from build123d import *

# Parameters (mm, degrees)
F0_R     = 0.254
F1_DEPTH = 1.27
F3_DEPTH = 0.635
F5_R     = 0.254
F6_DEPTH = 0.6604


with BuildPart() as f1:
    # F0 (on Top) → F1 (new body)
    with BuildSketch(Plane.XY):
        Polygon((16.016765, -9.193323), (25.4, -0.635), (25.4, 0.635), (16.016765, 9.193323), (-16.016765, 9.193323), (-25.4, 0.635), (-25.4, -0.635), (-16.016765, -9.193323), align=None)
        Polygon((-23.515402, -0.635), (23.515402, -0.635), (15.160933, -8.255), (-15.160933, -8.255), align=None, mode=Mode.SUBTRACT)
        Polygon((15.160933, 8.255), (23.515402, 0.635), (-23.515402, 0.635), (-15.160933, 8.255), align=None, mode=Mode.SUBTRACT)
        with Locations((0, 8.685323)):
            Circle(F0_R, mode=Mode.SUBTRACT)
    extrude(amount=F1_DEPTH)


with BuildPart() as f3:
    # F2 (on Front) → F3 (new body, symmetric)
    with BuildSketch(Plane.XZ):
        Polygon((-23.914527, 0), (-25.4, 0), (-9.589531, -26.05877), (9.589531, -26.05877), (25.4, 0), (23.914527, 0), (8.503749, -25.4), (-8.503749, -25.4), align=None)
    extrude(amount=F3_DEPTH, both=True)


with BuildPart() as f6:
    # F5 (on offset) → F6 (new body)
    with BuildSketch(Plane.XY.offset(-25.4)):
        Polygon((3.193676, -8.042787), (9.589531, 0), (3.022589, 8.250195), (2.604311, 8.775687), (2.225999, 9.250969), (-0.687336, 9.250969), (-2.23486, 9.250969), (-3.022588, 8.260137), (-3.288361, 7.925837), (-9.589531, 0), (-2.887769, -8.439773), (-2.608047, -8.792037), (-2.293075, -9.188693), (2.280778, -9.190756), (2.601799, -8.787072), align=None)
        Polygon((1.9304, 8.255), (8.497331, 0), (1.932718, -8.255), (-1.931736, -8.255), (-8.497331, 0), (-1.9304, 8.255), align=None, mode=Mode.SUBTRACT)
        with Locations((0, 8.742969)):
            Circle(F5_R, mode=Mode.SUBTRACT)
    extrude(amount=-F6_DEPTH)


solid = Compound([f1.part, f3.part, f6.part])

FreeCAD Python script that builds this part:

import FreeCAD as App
import Part
import Sketcher
from FreeCAD import Vector
Q = App.Units.Quantity


def add_polygon(sketch, points):
    """Adds a closed chain of lines whose ends are joined by coincident constraints."""
    first, n = sketch.GeometryCount, len(points)
    for a, b in zip(points, points[1:] + points[:1]):
        sketch.addGeometry(Part.LineSegment(App.Vector(*a, 0), App.Vector(*b, 0)), False)
    for i in range(n):
        sketch.addConstraint(Sketcher.Constraint("Coincident", first + i, 2, first + (i + 1) % n, 1))

doc = App.newDocument("Part")
body = doc.addObject("PartDesign::Body", "Body")

# Sketch on XY plane
sketch1 = body.newObject("Sketcher::SketchObject", "Sketch")
sketch1.AttachmentSupport = (doc.getObject("XY_Plane"), [""])
sketch1.MapMode = "FlatFace"
add_polygon(sketch1, [(16.02, -9.19), (25.4, -0.64), (25.4, 0.64), (16.02, 9.19), (-16.02, 9.19), (-25.4, 0.64), (-25.4, -0.64), (-16.02, -9.19)])  # lines 0-7
add_polygon(sketch1, [(-15.16, -8.26), (-23.52, -0.64), (23.52, -0.64), (15.16, -8.26)])  # lines 8-11
add_polygon(sketch1, [(-15.16, 8.26), (15.16, 8.26), (23.52, 0.64), (-23.52, 0.64)])  # lines 12-15
sketch1.addGeometry(Part.Circle(Vector(0, 8.69, 0), Vector(0, 0, 1), 0.25), False)  # 16
sketch1.addConstraint([
    Sketcher.Constraint("Vertical", 1),
    Sketcher.Constraint("Horizontal", 3),
    Sketcher.Constraint("Vertical", 5),
    Sketcher.Constraint("Horizontal", 7),
    Sketcher.Constraint("Horizontal", 9),
    Sketcher.Constraint("Horizontal", 11),
    Sketcher.Constraint("Horizontal", 12),
    Sketcher.Constraint("Horizontal", 14),
    Sketcher.Constraint("Symmetric", 0, 2, 4, 2, -1, 1),
    Sketcher.Constraint("Symmetric", 2, 2, 6, 2, -1, 1),
    Sketcher.Constraint("Symmetric", 11, 2, 12, 2, -1, 1),
    Sketcher.Constraint("Symmetric", 8, 2, 13, 2, -1, 1),
    Sketcher.Constraint("PointOnObject", 16, 3, -2),
    Sketcher.Constraint("Parallel", 0, 4),
    Sketcher.Constraint("Parallel", 2, 6),
    Sketcher.Constraint("Parallel", 6, 8),
    Sketcher.Constraint("Parallel", 4, 10),
    Sketcher.Constraint("Parallel", 10, 15),
    Sketcher.Constraint("Horizontal", 1, 2, 4, 2),
    Sketcher.Constraint("Horizontal", 5, 2, 8, 2),
    Sketcher.Constraint("Vertical", 3, 2, 6, 2),
    Sketcher.Constraint("Vertical", 10, 2, 12, 2),
    Sketcher.Constraint("Vertical", 8, 2, 14, 2),
    Sketcher.Constraint("Diameter", 16, Q("0.02 in")),
    Sketcher.Constraint("DistanceX", -1, 1, 0, 2, Q("1 in")),
    Sketcher.Constraint("Distance", 0, Q("0.5 in")),
    Sketcher.Constraint("DistanceY", 1, 1, 1, 2, Q("0.05 in")),
    Sketcher.Constraint("DistanceY", 10, 2, 9, 2, Q("0.3 in")),
    Sketcher.Constraint("DistanceY", 16, 3, 2, 2, Q("0.02 in")),
    Sketcher.Constraint("DistanceX", 3, 2, 3, 1, Q("32.03353 mm")),
    Sketcher.Constraint("DistanceX", 9, 1, 9, 2, Q("47.030804 mm")),
])
pad1 = body.newObject("PartDesign::Pad", "Pad")
pad1.Profile = sketch1
pad1.Length = Q("0.05 in")
body2 = doc.addObject("PartDesign::Body", "Body001")

# Sketch on XZ plane
sketch2 = body2.newObject("Sketcher::SketchObject", "Sketch001")
sketch2.AttachmentSupport = (doc.getObject("XZ_Plane001"), [""])
sketch2.MapMode = "FlatFace"
add_polygon(sketch2, [(-23.9, 0), (-25.4, 0), (-9.6, -26.1), (9.6, -26.1), (25.4, 0), (23.9, 0), (8.5, -25.4), (-8.5, -25.4)])  # lines 0-7
sketch2.addConstraint([
    Sketcher.Constraint("Horizontal", 0),
    Sketcher.Constraint("Horizontal", 2),
    Sketcher.Constraint("Horizontal", 4),
    Sketcher.Constraint("Horizontal", 6),
    Sketcher.Constraint("Symmetric", 0, 2, 3, 2, -1, 1),
    Sketcher.Constraint("Symmetric", 4, 2, 7, 2, -2),
    Sketcher.Constraint("Parallel", 3, 5),
    Sketcher.Constraint("Parallel", 1, 7),
    Sketcher.Constraint("Equal", 1, 3),
    Sketcher.Constraint("DistanceX", 0, 2, -1, 1, Q("1 in")),
    Sketcher.Constraint("DistanceY", 5, 2, -1, 1, Q("1 in")),
    Sketcher.Constraint("Distance", 1, Q("1.2 in")),
    Sketcher.Constraint("DistanceX", 2, 1, 2, 2, Q("19.179062 mm")),
    Sketcher.Constraint("DistanceX", 0, 2, 0, 1, Q("1.485473 mm")),
])
pad2 = body2.newObject("PartDesign::Pad", "Pad001")
pad2.Profile = sketch2
pad2.Length = Q("0.05 in")
pad2.Midplane = True
body3 = doc.addObject("PartDesign::Body", "Body002")

# Sketch on XY plane
sketch3 = body3.newObject("Sketcher::SketchObject", "Sketch002")
sketch3.AttachmentSupport = (doc.getObject("XY_Plane002"), [""])
sketch3.MapMode = "FlatFace"
sketch3.AttachmentOffset = App.Placement(Vector(0, 0, -1 * 25.4), App.Rotation())
add_polygon(sketch3, [(3.19, -8.04), (9.59, 0), (3.02, 8.25), (2.6, 8.78), (2.23, 9.25), (-2.23, 9.25), (-3.02, 8.26), (-3.29, 7.93), (-9.59, 0), (-2.89, -8.44), (-2.61, -8.79), (-2.29, -9.19), (2.28, -9.19), (2.6, -8.79)])  # lines 0-13
add_polygon(sketch3, [(-1.93, 8.26), (1.93, 8.26), (8.5, 0), (1.93, -8.26), (-1.93, -8.26), (-8.5, 0)])  # lines 14-19
sketch3.addGeometry(Part.Circle(Vector(0, 8.74, 0), Vector(0, 0, 1), 0.25), False)  # 20
sketch3.addConstraint([
    Sketcher.Constraint("Horizontal", 4),
    Sketcher.Constraint("Horizontal", 14),
    Sketcher.Constraint("Horizontal", 17),
    Sketcher.Constraint("Symmetric", 0, 2, 7, 2, -1, 1),
    Sketcher.Constraint("Symmetric", 15, 2, 18, 2, -1, 1),
    Sketcher.Constraint("PointOnObject", 20, 3, -2),
    Sketcher.Constraint("PointOnObject", 0, 2, -1),
    Sketcher.Constraint("PointOnObject", 15, 2, -1),
    Sketcher.Constraint("Parallel", 1, 2),
    Sketcher.Constraint("Parallel", 2, 3),
    Sketcher.Constraint("Parallel", 5, 6),
    Sketcher.Constraint("Parallel", 6, 7),
    Sketcher.Constraint("Parallel", 8, 9),
    Sketcher.Constraint("Parallel", 9, 10),
    Sketcher.Constraint("Parallel", 0, 12),
    Sketcher.Constraint("Parallel", 12, 13),
    Sketcher.Constraint("Parallel", 13, 16),
    Sketcher.Constraint("Equal", 15, 19),
    Sketcher.Constraint("Diameter", 20, Q("0.02 in")),
    Sketcher.Constraint("DistanceX", 14, 1, 14, 2, Q("0.152 in")),
    Sketcher.Constraint("DistanceY", 20, 3, 3, 2, Q("0.02 in")),
    Sketcher.Constraint("DistanceY", -1, 1, 14, 2, Q("0.325 in")),
    Sketcher.Constraint("DistanceY", 16, 2, -1, 1, Q("0.325 in")),
    Sketcher.Constraint("DistanceX", 15, 2, 0, 2, Q("0.043 in")),
    Sketcher.Constraint("Distance", 10, Q("0.506501 mm")),
    Sketcher.Constraint("Distance", 16, Q("10.546998 mm")),
    Sketcher.Constraint("DistanceX", 4, 2, 4, 1, Q("4.460859 mm")),
    Sketcher.Constraint("DistanceX", -1, 1, 3, 2, Q("2.225999 mm")),
    Sketcher.Constraint("DistanceX", -1, 1, 12, 2, Q("2.601799 mm")),
    Sketcher.Constraint("DistanceX", 5, 2, 2, 2, Q("5.626899 mm")),
    Sketcher.Constraint("DistanceY", 6, 2, 5, 2, Q("0.3343 mm")),
    Sketcher.Constraint("DistanceX", 6, 2, 4, 2, Q("1.053501 mm")),
    Sketcher.Constraint("DistanceX", 8, 2, 0, 2, Q("12.4773 mm")),
    Sketcher.Constraint("DistanceY", 12, 2, 8, 2, Q("0.347299 mm")),
    Sketcher.Constraint("Distance", 2, Q("0.671639 mm")),
    Sketcher.Constraint("Distance", 15, Q("10.548441 mm")),
    Sketcher.Constraint("Distance", 18, Q("10.547609 mm")),
    Sketcher.Constraint("DistanceY", -1, 1, 20, 3, Q("8.742969 mm")),
    Sketcher.Constraint("DistanceX", -1, 1, 11, 2, Q("2.280778 mm")),
    Sketcher.Constraint("DistanceX", 5, 2, 9, 2, Q("0.414541 mm")),
    Sketcher.Constraint("DistanceY", 11, 2, 13, 2, Q("1.147969 mm")),
])
pad3 = body3.newObject("PartDesign::Pad", "Pad002")
pad3.Profile = sketch3
pad3.Length = Q("0.026 in")
pad3.Reversed = True

doc.recompute()
